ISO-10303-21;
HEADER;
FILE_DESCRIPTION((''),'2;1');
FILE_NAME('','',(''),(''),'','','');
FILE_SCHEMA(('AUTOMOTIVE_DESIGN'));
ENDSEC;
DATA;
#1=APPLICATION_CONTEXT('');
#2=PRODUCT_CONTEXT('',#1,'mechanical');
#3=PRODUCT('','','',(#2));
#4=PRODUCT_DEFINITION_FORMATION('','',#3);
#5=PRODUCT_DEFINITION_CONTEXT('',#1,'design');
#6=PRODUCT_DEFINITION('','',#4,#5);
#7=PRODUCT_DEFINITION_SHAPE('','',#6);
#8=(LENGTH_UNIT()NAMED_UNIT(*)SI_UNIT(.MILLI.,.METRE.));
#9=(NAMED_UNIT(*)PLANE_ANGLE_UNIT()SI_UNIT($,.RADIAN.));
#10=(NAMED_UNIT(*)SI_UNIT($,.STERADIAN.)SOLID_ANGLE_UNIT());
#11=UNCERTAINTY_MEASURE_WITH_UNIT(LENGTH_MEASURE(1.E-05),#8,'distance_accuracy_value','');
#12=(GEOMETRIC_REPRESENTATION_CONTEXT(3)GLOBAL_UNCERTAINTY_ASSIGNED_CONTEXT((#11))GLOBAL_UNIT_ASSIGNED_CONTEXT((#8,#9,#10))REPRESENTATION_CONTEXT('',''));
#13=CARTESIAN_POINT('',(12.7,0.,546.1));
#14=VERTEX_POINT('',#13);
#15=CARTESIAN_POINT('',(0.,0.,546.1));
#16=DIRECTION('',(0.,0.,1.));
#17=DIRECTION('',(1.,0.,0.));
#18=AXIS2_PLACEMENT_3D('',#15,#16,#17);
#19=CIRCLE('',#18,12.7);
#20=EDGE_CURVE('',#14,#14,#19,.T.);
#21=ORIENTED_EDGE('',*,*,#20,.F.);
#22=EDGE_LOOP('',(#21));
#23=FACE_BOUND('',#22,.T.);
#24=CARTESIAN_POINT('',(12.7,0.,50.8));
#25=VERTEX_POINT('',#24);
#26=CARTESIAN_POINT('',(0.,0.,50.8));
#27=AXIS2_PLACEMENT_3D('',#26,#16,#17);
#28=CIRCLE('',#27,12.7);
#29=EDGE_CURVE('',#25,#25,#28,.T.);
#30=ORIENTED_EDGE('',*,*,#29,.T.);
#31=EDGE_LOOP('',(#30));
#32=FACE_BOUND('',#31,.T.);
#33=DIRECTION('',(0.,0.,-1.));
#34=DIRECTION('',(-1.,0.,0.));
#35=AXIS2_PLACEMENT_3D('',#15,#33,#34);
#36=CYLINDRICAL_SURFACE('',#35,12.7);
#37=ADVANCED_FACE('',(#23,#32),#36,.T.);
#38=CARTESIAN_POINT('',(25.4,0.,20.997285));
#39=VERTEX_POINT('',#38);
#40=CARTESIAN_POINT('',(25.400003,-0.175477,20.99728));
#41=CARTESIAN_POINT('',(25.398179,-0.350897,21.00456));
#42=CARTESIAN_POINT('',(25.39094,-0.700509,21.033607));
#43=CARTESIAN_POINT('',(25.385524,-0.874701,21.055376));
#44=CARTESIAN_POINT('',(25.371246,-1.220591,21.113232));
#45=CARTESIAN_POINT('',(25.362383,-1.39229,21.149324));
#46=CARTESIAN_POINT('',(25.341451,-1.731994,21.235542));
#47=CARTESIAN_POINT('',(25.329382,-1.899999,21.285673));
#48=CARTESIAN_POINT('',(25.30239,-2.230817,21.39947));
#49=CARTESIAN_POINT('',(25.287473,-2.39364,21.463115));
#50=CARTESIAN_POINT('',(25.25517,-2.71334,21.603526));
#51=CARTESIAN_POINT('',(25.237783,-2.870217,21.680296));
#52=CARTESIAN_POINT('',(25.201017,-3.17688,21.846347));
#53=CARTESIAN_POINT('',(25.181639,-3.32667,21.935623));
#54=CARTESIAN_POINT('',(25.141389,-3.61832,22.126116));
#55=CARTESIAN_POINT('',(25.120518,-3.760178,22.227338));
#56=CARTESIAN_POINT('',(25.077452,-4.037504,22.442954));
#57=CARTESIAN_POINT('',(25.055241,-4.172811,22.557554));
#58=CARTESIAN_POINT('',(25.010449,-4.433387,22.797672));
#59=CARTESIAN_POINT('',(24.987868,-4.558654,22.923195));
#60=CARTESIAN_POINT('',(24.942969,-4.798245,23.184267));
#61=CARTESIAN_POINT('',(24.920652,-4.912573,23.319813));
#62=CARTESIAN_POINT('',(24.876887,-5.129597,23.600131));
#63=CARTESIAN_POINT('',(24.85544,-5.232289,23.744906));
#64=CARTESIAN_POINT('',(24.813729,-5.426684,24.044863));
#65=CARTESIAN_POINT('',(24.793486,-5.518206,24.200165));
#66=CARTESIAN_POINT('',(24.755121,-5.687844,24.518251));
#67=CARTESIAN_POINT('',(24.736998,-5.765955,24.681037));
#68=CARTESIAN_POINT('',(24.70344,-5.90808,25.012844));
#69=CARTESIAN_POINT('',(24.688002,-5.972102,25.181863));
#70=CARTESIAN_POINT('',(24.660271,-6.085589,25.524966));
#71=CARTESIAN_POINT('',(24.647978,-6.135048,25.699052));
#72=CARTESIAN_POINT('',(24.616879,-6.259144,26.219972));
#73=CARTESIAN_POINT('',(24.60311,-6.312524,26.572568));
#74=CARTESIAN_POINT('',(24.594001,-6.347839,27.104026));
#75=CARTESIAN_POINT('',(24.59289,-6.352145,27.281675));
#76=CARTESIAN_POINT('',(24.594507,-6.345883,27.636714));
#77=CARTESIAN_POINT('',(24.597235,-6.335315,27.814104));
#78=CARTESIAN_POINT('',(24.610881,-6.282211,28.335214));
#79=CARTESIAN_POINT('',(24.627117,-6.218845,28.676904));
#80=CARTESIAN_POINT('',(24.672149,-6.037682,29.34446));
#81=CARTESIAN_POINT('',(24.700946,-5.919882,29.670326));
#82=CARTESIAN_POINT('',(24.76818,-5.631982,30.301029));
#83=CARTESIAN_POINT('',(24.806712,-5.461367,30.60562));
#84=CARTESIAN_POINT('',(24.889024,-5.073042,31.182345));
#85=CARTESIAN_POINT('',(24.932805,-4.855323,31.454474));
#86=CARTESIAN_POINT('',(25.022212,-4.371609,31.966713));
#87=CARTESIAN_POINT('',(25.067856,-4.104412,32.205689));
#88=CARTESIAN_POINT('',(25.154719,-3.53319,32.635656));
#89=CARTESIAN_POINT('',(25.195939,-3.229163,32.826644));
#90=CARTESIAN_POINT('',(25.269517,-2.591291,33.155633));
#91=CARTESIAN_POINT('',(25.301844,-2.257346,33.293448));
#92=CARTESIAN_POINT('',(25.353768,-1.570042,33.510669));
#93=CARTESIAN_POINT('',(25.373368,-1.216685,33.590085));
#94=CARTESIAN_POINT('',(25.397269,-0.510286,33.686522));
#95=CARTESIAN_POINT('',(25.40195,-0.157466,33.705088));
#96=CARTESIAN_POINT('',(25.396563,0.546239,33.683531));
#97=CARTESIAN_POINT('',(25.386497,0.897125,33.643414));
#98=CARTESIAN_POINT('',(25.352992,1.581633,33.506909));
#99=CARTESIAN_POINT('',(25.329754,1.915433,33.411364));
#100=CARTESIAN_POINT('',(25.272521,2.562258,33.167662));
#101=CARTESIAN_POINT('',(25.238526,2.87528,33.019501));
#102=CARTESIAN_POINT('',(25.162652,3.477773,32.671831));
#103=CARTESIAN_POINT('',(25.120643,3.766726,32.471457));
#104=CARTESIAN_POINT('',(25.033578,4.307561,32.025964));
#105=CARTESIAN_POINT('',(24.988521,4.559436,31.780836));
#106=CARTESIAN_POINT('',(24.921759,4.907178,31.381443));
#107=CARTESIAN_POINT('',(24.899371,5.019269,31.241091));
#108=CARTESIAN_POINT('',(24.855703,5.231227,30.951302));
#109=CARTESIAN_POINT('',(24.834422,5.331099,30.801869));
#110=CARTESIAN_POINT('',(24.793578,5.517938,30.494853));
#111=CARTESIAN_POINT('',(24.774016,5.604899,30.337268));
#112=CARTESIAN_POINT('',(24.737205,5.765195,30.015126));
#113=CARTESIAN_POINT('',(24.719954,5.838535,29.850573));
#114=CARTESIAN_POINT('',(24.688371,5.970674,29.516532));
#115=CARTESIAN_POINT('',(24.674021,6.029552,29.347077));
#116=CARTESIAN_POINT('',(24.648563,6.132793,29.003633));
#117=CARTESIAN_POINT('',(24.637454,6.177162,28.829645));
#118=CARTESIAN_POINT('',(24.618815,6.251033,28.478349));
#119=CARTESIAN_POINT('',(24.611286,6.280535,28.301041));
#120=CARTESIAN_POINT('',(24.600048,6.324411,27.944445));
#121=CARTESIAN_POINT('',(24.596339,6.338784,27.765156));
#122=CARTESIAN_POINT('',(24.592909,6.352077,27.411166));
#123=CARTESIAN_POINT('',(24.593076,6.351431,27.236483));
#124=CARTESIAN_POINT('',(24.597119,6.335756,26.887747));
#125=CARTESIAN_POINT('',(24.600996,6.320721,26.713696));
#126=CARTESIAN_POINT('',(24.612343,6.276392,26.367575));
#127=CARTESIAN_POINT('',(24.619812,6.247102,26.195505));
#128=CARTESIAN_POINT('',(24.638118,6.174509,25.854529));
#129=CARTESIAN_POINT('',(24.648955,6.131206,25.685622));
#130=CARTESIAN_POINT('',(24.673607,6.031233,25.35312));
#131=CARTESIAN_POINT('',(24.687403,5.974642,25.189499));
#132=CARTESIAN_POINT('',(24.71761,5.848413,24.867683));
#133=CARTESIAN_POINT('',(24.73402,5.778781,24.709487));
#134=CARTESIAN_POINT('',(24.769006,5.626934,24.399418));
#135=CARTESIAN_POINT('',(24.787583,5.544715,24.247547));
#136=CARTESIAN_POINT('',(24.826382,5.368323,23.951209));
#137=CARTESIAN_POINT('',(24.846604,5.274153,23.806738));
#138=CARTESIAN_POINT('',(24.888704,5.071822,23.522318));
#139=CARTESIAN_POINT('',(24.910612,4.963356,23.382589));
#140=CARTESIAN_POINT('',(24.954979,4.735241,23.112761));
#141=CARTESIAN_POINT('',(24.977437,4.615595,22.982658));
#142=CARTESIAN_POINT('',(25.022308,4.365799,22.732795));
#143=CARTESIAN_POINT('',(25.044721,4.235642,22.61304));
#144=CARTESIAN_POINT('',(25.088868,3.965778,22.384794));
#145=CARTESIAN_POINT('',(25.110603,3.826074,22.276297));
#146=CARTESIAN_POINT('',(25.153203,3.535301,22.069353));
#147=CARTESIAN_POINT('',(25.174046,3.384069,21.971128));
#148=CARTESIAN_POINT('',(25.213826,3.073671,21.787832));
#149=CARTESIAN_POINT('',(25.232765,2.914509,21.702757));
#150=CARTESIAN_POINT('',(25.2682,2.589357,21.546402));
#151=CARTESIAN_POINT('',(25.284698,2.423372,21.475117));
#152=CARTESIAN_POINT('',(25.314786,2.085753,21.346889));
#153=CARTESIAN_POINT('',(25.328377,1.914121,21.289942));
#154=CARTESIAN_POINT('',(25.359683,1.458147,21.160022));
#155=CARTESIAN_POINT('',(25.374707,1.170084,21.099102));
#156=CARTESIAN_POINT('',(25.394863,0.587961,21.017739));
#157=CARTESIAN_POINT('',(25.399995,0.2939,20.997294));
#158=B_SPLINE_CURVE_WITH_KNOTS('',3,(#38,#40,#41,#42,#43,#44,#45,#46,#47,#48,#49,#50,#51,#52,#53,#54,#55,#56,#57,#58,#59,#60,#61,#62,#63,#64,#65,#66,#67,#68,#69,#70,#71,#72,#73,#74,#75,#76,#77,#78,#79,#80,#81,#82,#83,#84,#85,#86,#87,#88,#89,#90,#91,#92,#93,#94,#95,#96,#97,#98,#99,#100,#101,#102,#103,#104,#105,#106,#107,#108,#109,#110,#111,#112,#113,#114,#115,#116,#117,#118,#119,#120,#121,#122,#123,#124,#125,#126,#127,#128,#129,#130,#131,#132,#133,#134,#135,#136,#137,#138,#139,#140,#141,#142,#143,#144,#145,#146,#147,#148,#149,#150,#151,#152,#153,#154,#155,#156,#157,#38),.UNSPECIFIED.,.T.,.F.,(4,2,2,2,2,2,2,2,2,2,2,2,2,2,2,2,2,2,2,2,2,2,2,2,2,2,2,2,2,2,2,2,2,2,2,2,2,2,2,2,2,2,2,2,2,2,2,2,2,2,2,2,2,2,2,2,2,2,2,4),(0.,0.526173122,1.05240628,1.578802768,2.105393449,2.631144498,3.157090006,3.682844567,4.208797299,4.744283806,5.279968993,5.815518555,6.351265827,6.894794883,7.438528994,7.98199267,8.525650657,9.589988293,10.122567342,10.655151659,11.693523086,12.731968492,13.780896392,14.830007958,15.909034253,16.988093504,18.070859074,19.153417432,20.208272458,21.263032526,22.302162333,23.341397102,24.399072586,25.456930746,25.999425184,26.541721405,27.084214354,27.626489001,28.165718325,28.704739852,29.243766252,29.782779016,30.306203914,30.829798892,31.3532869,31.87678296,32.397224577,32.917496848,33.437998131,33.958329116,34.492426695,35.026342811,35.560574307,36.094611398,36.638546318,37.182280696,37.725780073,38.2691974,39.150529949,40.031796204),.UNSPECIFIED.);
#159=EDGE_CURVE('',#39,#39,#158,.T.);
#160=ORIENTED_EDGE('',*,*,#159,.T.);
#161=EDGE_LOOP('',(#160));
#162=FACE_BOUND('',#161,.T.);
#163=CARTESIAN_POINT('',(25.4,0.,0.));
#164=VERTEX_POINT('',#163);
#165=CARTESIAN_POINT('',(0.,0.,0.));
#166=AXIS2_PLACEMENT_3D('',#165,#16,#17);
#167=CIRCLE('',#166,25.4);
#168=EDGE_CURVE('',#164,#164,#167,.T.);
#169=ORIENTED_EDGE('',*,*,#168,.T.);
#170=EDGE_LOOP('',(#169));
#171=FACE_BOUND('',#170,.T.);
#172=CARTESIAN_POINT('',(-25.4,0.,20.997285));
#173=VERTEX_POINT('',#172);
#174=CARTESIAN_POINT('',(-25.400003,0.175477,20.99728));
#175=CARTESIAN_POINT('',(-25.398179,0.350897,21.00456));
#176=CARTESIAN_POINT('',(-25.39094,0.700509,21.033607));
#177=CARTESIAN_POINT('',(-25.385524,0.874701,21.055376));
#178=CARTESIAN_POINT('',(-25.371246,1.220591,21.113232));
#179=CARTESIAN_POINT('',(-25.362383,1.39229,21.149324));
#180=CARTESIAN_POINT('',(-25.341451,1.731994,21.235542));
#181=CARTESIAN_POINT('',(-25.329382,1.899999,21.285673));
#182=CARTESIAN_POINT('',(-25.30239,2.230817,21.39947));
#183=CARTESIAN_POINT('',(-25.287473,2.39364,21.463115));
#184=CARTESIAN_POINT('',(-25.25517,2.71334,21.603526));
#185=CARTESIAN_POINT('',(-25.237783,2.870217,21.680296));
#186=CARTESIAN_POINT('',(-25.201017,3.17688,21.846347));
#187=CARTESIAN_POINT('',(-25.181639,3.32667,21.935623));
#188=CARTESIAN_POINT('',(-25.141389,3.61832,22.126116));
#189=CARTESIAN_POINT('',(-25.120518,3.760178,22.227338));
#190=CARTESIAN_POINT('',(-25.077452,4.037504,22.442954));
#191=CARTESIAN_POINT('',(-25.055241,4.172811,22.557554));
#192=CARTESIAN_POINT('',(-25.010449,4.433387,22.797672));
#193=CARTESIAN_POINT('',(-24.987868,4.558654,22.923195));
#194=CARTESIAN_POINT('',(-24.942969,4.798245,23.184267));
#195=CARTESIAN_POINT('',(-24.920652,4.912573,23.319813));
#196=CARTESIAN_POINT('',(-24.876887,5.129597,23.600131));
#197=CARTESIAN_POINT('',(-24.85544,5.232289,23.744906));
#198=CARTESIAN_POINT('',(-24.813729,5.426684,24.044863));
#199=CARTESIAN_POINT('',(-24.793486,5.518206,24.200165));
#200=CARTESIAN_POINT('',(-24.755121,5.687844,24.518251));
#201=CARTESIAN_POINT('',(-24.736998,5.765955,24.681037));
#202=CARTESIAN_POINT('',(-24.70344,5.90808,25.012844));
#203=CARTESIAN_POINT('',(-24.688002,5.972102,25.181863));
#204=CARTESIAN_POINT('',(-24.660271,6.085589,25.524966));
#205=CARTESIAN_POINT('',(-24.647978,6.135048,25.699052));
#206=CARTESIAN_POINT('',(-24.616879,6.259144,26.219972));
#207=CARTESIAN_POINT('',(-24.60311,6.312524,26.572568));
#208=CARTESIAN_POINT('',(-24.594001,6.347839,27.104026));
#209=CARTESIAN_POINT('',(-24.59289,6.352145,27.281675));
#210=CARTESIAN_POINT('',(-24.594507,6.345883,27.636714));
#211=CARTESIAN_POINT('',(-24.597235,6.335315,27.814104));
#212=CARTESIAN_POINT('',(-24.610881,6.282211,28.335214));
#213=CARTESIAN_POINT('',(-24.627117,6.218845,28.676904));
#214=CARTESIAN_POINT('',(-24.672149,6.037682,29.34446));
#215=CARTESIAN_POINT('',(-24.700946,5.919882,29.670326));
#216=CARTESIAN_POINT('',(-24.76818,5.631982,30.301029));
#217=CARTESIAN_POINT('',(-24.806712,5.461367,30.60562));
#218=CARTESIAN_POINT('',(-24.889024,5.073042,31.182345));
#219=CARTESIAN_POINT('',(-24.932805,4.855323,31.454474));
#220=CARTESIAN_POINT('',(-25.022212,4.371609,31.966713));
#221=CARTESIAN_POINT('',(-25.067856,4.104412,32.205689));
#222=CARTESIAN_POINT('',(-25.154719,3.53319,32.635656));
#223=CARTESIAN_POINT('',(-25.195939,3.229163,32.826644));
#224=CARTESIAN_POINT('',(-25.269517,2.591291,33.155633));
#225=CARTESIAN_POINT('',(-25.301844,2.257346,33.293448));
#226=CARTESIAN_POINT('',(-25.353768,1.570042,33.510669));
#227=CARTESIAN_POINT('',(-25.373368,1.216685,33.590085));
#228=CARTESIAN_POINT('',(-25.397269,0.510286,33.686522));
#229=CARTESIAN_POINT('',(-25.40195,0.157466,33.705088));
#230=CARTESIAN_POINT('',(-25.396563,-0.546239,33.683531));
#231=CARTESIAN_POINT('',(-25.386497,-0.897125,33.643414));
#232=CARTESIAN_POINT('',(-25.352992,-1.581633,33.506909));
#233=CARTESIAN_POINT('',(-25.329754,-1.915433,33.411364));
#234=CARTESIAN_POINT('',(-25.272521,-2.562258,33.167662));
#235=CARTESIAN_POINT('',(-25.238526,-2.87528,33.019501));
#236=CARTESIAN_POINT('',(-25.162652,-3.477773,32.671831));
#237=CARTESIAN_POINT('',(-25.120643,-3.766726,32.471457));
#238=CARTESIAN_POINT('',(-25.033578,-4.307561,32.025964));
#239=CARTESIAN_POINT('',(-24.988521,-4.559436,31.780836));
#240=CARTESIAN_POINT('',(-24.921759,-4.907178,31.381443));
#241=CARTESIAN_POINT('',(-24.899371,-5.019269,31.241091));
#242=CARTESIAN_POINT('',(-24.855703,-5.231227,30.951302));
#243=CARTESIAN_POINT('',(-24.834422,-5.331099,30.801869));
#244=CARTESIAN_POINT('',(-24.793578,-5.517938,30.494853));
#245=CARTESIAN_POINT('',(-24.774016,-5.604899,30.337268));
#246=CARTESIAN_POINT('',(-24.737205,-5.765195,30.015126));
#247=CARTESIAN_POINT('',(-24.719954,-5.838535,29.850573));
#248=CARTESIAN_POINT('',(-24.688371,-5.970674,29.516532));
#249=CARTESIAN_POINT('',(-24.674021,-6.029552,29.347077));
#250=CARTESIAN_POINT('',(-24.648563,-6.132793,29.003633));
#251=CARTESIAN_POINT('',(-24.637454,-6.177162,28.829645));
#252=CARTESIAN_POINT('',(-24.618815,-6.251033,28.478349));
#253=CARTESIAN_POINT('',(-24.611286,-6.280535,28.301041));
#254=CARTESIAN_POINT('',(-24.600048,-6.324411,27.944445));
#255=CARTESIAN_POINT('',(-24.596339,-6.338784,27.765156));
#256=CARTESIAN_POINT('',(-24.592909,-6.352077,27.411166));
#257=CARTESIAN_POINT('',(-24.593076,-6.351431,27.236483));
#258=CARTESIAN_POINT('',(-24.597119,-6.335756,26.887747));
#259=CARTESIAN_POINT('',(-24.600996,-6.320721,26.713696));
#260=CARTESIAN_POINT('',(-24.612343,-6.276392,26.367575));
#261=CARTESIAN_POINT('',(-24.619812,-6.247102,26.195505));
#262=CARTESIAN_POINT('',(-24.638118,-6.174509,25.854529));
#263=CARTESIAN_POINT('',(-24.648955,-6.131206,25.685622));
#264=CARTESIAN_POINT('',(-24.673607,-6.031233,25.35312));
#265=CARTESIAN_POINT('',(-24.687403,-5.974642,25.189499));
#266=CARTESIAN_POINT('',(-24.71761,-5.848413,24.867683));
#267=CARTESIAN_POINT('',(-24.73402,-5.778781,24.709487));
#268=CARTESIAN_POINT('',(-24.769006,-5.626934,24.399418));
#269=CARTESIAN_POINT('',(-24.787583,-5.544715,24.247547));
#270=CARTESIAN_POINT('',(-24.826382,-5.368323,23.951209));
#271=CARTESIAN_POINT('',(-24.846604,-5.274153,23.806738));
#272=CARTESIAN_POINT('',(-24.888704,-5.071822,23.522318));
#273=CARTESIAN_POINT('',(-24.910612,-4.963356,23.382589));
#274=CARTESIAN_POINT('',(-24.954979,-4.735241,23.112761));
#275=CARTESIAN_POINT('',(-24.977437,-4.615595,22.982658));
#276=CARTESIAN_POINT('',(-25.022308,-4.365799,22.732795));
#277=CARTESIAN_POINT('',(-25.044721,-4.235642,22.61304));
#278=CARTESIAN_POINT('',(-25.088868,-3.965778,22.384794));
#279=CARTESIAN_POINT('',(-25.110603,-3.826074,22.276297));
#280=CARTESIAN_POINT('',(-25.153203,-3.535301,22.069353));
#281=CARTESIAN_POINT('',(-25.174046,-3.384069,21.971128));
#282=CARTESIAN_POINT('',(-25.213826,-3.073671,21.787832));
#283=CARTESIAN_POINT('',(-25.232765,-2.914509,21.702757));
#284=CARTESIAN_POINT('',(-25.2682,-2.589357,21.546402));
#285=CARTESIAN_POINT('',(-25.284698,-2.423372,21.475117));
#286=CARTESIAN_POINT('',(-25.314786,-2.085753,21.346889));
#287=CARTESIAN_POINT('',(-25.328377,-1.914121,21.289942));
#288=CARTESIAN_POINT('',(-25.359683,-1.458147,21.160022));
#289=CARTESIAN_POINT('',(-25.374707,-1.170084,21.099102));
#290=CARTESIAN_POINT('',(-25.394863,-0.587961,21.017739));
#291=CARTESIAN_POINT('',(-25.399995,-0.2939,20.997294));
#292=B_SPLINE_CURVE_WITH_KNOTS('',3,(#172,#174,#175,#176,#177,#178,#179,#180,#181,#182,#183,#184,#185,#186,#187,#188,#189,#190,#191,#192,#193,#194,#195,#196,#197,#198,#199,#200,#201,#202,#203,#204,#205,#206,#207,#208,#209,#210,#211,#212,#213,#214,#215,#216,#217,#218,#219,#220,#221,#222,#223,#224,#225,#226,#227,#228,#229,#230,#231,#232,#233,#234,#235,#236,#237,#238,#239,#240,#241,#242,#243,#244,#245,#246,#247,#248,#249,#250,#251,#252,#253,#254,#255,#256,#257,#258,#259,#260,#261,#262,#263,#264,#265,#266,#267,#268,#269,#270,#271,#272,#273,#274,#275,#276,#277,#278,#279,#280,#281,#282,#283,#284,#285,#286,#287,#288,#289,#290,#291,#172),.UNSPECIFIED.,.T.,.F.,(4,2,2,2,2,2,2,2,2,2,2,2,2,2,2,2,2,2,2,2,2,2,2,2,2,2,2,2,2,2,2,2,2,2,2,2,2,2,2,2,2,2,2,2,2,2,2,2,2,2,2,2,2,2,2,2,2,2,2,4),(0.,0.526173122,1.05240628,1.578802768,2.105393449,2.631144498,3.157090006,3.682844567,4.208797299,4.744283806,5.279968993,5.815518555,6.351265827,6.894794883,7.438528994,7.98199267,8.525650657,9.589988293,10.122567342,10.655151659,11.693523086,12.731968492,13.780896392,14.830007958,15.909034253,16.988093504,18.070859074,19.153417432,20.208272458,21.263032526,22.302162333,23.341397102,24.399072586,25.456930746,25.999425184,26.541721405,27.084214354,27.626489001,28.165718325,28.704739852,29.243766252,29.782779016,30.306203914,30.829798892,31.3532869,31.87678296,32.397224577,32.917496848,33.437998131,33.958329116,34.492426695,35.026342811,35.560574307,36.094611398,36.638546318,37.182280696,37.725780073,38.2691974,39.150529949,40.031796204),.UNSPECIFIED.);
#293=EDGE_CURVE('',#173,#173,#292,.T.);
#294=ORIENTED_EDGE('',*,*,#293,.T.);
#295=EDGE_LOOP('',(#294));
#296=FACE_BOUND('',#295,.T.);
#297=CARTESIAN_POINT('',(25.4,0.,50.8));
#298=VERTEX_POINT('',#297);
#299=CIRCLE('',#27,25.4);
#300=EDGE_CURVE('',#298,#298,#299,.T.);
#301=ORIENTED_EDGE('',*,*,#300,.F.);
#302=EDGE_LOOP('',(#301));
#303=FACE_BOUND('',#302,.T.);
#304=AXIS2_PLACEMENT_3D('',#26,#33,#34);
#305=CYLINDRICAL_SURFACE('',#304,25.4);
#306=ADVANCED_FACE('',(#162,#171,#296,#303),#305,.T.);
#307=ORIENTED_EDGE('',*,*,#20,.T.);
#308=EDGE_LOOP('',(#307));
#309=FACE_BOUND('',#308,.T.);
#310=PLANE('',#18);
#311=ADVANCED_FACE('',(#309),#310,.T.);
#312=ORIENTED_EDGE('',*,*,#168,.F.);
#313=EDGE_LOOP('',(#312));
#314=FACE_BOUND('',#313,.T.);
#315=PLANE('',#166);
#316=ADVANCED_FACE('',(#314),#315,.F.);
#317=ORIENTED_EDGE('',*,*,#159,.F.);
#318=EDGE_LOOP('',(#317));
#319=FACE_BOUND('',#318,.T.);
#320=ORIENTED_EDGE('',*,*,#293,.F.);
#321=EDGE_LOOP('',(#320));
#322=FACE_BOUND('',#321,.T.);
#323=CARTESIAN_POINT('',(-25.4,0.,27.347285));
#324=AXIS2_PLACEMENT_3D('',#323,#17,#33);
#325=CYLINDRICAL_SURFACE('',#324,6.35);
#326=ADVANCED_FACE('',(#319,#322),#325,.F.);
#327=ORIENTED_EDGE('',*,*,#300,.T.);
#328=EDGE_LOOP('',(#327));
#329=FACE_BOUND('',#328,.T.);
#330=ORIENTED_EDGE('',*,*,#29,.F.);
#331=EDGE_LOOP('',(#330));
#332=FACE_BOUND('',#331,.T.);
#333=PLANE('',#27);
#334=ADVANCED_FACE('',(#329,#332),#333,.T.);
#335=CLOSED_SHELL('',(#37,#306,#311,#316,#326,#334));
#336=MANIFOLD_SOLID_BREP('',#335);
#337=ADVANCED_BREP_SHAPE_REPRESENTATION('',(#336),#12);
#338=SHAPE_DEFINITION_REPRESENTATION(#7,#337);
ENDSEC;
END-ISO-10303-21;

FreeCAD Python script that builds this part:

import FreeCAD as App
import Part
import Sketcher

V = App.Vector
Q = App.Units.Quantity

doc = App.newDocument("Part")
body = doc.addObject("PartDesign::Body", "Body")

# Sketch on XY plane
sketch1 = body.newObject("Sketcher::SketchObject", "Sketch")
sketch1.AttachmentSupport = (doc.getObject("XY_Plane"), [""])
sketch1.MapMode = "FlatFace"
sketch1.addGeometry(Part.Circle(V(0, 0, 0), V(0, 0, 1), 25), False)
sketch1.addConstraint(Sketcher.Constraint("Coincident", 0, 3, -1, 1))
sketch1.addConstraint(Sketcher.Constraint("Diameter", 0, Q("2 in")))
pad1 = body.newObject("PartDesign::Pad", "Pad")
pad1.Profile = sketch1
pad1.Length = Q("2 in")

# Sketch on XY plane
sketch2 = body.newObject("Sketcher::SketchObject", "Sketch001")
sketch2.AttachmentSupport = (doc.getObject("XY_Plane"), [""])
sketch2.MapMode = "FlatFace"
sketch2.AttachmentOffset = App.Placement(V(0, 0, 2 * 25.4), App.Rotation())
sketch2.addGeometry(Part.Circle(V(0, 0, 0), V(0, 0, 1), 13), False)
sketch2.addConstraint(Sketcher.Constraint("Coincident", 0, 3, -1, 1))
sketch2.addConstraint(Sketcher.Constraint("Diameter", 0, Q("1 in")))
pad2 = body.newObject("PartDesign::Pad", "Pad001")
pad2.Profile = sketch2
pad2.Length = Q("19.5 in")

# Sketch on YZ plane
sketch3 = body.newObject("Sketcher::SketchObject", "Sketch002")
sketch3.AttachmentSupport = (doc.getObject("YZ_Plane"), [""])
sketch3.MapMode = "FlatFace"
sketch3.addGeometry(Part.Circle(V(0, 27, 0), V(0, 0, 1), 6), False)
sketch3.addConstraint(Sketcher.Constraint("PointOnObject", 0, 3, -2))
sketch3.addConstraint(Sketcher.Constraint("Diameter", 0, Q("0.5 in")))
sketch3.addConstraint(Sketcher.Constraint("DistanceY", -1, 1, 0, 3, Q("27.347285 mm")))
pocket1 = body.newObject("PartDesign::Pocket", "Pocket")
pocket1.Profile = sketch3
pocket1.Type = "ThroughAll"
pocket1.Midplane = True

doc.recompute()
